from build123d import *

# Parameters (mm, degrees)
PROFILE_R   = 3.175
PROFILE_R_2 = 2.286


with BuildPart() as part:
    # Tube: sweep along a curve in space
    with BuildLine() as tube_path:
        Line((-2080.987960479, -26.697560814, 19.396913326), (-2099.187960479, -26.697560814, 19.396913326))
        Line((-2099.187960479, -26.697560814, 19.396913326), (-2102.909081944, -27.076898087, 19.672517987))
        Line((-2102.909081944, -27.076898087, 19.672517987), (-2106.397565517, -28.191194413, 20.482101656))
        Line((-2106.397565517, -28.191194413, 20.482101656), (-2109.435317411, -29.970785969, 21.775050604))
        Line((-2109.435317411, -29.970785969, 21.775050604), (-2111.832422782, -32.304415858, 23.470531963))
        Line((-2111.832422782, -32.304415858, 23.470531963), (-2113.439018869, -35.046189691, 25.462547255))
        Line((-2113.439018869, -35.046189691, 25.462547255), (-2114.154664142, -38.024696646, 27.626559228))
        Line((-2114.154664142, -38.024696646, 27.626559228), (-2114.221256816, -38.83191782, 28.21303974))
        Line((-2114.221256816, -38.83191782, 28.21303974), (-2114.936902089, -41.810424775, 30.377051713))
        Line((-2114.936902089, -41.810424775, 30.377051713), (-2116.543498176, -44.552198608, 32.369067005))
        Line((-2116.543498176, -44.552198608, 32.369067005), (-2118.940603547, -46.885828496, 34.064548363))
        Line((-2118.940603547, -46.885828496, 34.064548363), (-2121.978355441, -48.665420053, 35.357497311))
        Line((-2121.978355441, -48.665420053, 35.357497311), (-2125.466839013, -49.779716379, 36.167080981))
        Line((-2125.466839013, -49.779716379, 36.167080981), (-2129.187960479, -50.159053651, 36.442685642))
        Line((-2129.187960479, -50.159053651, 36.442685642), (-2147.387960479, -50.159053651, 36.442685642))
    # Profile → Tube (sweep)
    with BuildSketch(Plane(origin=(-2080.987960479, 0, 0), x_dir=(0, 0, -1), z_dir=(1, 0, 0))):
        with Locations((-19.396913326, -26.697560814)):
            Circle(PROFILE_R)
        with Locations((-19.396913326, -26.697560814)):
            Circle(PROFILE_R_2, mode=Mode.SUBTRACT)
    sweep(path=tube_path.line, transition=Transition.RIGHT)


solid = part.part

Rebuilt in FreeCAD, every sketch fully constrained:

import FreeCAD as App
import Part
import Sketcher

doc = App.newDocument("Part")
body = doc.addObject("PartDesign::Body", "Body")

# Sketch on YZ plane
sketch1 = doc.addObject("Sketcher::SketchObject", "Sketch")
body.addObject(sketch1)
sketch1.AttachmentSupport = (doc.YZ_Plane, [""])
sketch1.MapMode = "FlatFace"
sketch1.AttachmentOffset = App.Placement(App.Vector(0, 0, -2080.98796), App.Rotation())
sketch1.addGeometry(Part.Circle(App.Vector(-26.697561, 19.396913, 0), App.Vector(0, 0, 1), 3.175), False)
sketch1.addGeometry(Part.Circle(App.Vector(-26.697561, 19.396913, 0), App.Vector(0, 0, 1), 2.286), False)
sketch1.addConstraint(Sketcher.Constraint("Coincident", 1, 3, 0, 3))
sketch1.addConstraint(Sketcher.Constraint("Diameter", 0, 6.35))
sketch1.addConstraint(Sketcher.Constraint("Diameter", 1, 4.572))
sketch1.addConstraint(Sketcher.Constraint("DistanceX", 0, 3, -1, 1, 26.697561))
sketch1.addConstraint(Sketcher.Constraint("DistanceY", -1, 1, 0, 3, 19.396913))

# Sketch on an angled plane
sketch2 = doc.addObject("Sketcher::SketchObject", "Sketch001")
body.addObject(sketch2)
sketch2.Placement = App.Placement(App.Vector(0, 0, 0), App.Rotation(App.Vector(0, 0.809016994, -0.587785252), App.Vector(0.999999999, 0, 0), App.Vector(0, -0.587785252, -0.809016994), "ZXY"))
sketch2.addGeometry(Part.LineSegment(App.Vector(-33, -2080.987957, 0), App.Vector(-33, -2099.187956, 0)), False)
sketch2.addGeometry(Part.LineSegment(App.Vector(-33, -2099.187956, 0), App.Vector(-33.468887, -2102.909078, 0)), False)
sketch2.addGeometry(Part.LineSegment(App.Vector(-33.468887, -2102.909078, 0), App.Vector(-34.846233, -2106.397562, 0)), False)
sketch2.addGeometry(Part.LineSegment(App.Vector(-34.846233, -2106.397562, 0), App.Vector(-37.045929, -2109.435313, 0)), False)
sketch2.addGeometry(Part.LineSegment(App.Vector(-37.045929, -2109.435313, 0), App.Vector(-39.930454, -2111.832419, 0)), False)
sketch2.addGeometry(Part.LineSegment(App.Vector(-39.930454, -2111.832419, 0), App.Vector(-43.319473, -2113.439015, 0)), False)
sketch2.addGeometry(Part.LineSegment(App.Vector(-43.319473, -2113.439015, 0), App.Vector(-47.00111, -2114.15466, 0)), False)
sketch2.addGeometry(Part.LineSegment(App.Vector(-47.00111, -2114.15466, 0), App.Vector(-47.99889, -2114.221253, 0)), False)
sketch2.addGeometry(Part.LineSegment(App.Vector(-47.99889, -2114.221253, 0), App.Vector(-51.680527, -2114.936898, 0)), False)
sketch2.addGeometry(Part.LineSegment(App.Vector(-51.680527, -2114.936898, 0), App.Vector(-55.069546, -2116.543494, 0)), False)
sketch2.addGeometry(Part.LineSegment(App.Vector(-55.069546, -2116.543494, 0), App.Vector(-57.954071, -2118.9406, 0)), False)
sketch2.addGeometry(Part.LineSegment(App.Vector(-57.954071, -2118.9406, 0), App.Vector(-60.153767, -2121.978351, 0)), False)
sketch2.addGeometry(Part.LineSegment(App.Vector(-60.153767, -2121.978351, 0), App.Vector(-61.531113, -2125.466835, 0)), False)
sketch2.addGeometry(Part.LineSegment(App.Vector(-61.531113, -2125.466835, 0), App.Vector(-62, -2129.187956, 0)), False)
sketch2.addGeometry(Part.LineSegment(App.Vector(-62, -2129.187956, 0), App.Vector(-62, -2147.387956, 0)), False)
sketch2.addConstraint(Sketcher.Constraint("Coincident", 0, 2, 1, 1))
sketch2.addConstraint(Sketcher.Constraint("Coincident", 1, 2, 2, 1))
sketch2.addConstraint(Sketcher.Constraint("Coincident", 2, 2, 3, 1))
sketch2.addConstraint(Sketcher.Constraint("Coincident", 3, 2, 4, 1))
sketch2.addConstraint(Sketcher.Constraint("Coincident", 4, 2, 5, 1))
sketch2.addConstraint(Sketcher.Constraint("Coincident", 5, 2, 6, 1))
sketch2.addConstraint(Sketcher.Constraint("Coincident", 6, 2, 7, 1))
sketch2.addConstraint(Sketcher.Constraint("Coincident", 7, 2, 8, 1))
sketch2.addConstraint(Sketcher.Constraint("Coincident", 8, 2, 9, 1))
sketch2.addConstraint(Sketcher.Constraint("Coincident", 9, 2, 10, 1))
sketch2.addConstraint(Sketcher.Constraint("Coincident", 10, 2, 11, 1))
sketch2.addConstraint(Sketcher.Constraint("Coincident", 11, 2, 12, 1))
sketch2.addConstraint(Sketcher.Constraint("Coincident", 12, 2, 13, 1))
sketch2.addConstraint(Sketcher.Constraint("Coincident", 13, 2, 14, 1))
sketch2.addConstraint(Sketcher.Constraint("Vertical", 0))
sketch2.addConstraint(Sketcher.Constraint("Vertical", 14))
sketch2.addConstraint(Sketcher.Constraint("Distance", 7, 1.0))
sketch2.addConstraint(Sketcher.Constraint("DistanceY", 0, 2, 0, 1, 18.2))
sketch2.addConstraint(Sketcher.Constraint("DistanceY", 14, 2, 14, 1, 18.2))
sketch2.addConstraint(Sketcher.Constraint("DistanceX", 0, 1, -1, 1, 33.0))
sketch2.addConstraint(Sketcher.Constraint("DistanceX", 13, 2, -1, 1, 62.0))
sketch2.addConstraint(Sketcher.Constraint("DistanceY", 8, 2, -1, 1, 2114.936898))
sketch2.addConstraint(Sketcher.Constraint("DistanceY", 10, 2, -1, 1, 2118.9406))
sketch2.addConstraint(Sketcher.Constraint("DistanceY", 5, 2, 3, 2, 4.003701))
sketch2.addConstraint(Sketcher.Constraint("DistanceY", 6, 2, 2, 2, 7.757099))
sketch2.addConstraint(Sketcher.Constraint("DistanceX", 8, 2, 3, 2, 14.634598))
sketch2.addConstraint(Sketcher.Constraint("DistanceX", 10, 2, 5, 2, 14.634598))
sketch2.addConstraint(Sketcher.Constraint("DistanceY", 11, 2, 7, 2, 7.757099))
sketch2.addConstraint(Sketcher.Constraint("DistanceY", 2, 2, -1, 1, 2106.397562))
sketch2.addConstraint(Sketcher.Constraint("DistanceX", 3, 2, -1, 1, 37.045929))
sketch2.addConstraint(Sketcher.Constraint("DistanceY", 4, 2, -1, 1, 2111.832419))
sketch2.addConstraint(Sketcher.Constraint("DistanceX", 6, 2, -1, 1, 47.00111))
sketch2.addConstraint(Sketcher.Constraint("DistanceX", 7, 2, -1, 1, 47.99889))
sketch2.addConstraint(Sketcher.Constraint("DistanceX", 10, 2, -1, 1, 57.954071))
sketch2.addConstraint(Sketcher.Constraint("DistanceY", 1, 2, 0, 2, 3.721121))
sketch2.addConstraint(Sketcher.Constraint("DistanceY", 3, 2, 2, 2, 3.037752))
sketch2.addConstraint(Sketcher.Constraint("DistanceX", 4, 2, 2, 2, 5.084221))
sketch2.addConstraint(Sketcher.Constraint("DistanceY", 4, 2, 1, 2, 8.923341))
sketch2.addConstraint(Sketcher.Constraint("DistanceX", 5, 2, 4, 2, 3.389019))
sketch2.addConstraint(Sketcher.Constraint("DistanceX", 9, 2, 8, 2, 3.389019))
sketch2.addConstraint(Sketcher.Constraint("DistanceY", 9, 2, 7, 2, 2.322241))
sketch2.addConstraint(Sketcher.Constraint("DistanceX", 11, 2, 9, 2, 5.084221))
sketch2.addConstraint(Sketcher.Constraint("DistanceY", 12, 2, 9, 2, 8.923341))
sketch2.addConstraint(Sketcher.Constraint("DistanceY", 13, 2, 12, 2, 3.721121))
sketch2.addConstraint(Sketcher.Constraint("Distance", 1, 3.750547))
sketch2.addConstraint(Sketcher.Constraint("Distance", 12, 3.750547))
doc.recompute()

additivepipe = doc.addObject("PartDesign::AdditivePipe", "AdditivePipe")
body.addObject(additivepipe)
additivepipe.Profile = sketch1
additivepipe.Spine = (sketch2, ["Edge1", "Edge2", "Edge3", "Edge4", "Edge5", "Edge6", "Edge7", "Edge8", "Edge9", "Edge10", "Edge11", "Edge12", "Edge13", "Edge14", "Edge15"])
additivepipe.Transition = "Right corner"

doc.recompute()
